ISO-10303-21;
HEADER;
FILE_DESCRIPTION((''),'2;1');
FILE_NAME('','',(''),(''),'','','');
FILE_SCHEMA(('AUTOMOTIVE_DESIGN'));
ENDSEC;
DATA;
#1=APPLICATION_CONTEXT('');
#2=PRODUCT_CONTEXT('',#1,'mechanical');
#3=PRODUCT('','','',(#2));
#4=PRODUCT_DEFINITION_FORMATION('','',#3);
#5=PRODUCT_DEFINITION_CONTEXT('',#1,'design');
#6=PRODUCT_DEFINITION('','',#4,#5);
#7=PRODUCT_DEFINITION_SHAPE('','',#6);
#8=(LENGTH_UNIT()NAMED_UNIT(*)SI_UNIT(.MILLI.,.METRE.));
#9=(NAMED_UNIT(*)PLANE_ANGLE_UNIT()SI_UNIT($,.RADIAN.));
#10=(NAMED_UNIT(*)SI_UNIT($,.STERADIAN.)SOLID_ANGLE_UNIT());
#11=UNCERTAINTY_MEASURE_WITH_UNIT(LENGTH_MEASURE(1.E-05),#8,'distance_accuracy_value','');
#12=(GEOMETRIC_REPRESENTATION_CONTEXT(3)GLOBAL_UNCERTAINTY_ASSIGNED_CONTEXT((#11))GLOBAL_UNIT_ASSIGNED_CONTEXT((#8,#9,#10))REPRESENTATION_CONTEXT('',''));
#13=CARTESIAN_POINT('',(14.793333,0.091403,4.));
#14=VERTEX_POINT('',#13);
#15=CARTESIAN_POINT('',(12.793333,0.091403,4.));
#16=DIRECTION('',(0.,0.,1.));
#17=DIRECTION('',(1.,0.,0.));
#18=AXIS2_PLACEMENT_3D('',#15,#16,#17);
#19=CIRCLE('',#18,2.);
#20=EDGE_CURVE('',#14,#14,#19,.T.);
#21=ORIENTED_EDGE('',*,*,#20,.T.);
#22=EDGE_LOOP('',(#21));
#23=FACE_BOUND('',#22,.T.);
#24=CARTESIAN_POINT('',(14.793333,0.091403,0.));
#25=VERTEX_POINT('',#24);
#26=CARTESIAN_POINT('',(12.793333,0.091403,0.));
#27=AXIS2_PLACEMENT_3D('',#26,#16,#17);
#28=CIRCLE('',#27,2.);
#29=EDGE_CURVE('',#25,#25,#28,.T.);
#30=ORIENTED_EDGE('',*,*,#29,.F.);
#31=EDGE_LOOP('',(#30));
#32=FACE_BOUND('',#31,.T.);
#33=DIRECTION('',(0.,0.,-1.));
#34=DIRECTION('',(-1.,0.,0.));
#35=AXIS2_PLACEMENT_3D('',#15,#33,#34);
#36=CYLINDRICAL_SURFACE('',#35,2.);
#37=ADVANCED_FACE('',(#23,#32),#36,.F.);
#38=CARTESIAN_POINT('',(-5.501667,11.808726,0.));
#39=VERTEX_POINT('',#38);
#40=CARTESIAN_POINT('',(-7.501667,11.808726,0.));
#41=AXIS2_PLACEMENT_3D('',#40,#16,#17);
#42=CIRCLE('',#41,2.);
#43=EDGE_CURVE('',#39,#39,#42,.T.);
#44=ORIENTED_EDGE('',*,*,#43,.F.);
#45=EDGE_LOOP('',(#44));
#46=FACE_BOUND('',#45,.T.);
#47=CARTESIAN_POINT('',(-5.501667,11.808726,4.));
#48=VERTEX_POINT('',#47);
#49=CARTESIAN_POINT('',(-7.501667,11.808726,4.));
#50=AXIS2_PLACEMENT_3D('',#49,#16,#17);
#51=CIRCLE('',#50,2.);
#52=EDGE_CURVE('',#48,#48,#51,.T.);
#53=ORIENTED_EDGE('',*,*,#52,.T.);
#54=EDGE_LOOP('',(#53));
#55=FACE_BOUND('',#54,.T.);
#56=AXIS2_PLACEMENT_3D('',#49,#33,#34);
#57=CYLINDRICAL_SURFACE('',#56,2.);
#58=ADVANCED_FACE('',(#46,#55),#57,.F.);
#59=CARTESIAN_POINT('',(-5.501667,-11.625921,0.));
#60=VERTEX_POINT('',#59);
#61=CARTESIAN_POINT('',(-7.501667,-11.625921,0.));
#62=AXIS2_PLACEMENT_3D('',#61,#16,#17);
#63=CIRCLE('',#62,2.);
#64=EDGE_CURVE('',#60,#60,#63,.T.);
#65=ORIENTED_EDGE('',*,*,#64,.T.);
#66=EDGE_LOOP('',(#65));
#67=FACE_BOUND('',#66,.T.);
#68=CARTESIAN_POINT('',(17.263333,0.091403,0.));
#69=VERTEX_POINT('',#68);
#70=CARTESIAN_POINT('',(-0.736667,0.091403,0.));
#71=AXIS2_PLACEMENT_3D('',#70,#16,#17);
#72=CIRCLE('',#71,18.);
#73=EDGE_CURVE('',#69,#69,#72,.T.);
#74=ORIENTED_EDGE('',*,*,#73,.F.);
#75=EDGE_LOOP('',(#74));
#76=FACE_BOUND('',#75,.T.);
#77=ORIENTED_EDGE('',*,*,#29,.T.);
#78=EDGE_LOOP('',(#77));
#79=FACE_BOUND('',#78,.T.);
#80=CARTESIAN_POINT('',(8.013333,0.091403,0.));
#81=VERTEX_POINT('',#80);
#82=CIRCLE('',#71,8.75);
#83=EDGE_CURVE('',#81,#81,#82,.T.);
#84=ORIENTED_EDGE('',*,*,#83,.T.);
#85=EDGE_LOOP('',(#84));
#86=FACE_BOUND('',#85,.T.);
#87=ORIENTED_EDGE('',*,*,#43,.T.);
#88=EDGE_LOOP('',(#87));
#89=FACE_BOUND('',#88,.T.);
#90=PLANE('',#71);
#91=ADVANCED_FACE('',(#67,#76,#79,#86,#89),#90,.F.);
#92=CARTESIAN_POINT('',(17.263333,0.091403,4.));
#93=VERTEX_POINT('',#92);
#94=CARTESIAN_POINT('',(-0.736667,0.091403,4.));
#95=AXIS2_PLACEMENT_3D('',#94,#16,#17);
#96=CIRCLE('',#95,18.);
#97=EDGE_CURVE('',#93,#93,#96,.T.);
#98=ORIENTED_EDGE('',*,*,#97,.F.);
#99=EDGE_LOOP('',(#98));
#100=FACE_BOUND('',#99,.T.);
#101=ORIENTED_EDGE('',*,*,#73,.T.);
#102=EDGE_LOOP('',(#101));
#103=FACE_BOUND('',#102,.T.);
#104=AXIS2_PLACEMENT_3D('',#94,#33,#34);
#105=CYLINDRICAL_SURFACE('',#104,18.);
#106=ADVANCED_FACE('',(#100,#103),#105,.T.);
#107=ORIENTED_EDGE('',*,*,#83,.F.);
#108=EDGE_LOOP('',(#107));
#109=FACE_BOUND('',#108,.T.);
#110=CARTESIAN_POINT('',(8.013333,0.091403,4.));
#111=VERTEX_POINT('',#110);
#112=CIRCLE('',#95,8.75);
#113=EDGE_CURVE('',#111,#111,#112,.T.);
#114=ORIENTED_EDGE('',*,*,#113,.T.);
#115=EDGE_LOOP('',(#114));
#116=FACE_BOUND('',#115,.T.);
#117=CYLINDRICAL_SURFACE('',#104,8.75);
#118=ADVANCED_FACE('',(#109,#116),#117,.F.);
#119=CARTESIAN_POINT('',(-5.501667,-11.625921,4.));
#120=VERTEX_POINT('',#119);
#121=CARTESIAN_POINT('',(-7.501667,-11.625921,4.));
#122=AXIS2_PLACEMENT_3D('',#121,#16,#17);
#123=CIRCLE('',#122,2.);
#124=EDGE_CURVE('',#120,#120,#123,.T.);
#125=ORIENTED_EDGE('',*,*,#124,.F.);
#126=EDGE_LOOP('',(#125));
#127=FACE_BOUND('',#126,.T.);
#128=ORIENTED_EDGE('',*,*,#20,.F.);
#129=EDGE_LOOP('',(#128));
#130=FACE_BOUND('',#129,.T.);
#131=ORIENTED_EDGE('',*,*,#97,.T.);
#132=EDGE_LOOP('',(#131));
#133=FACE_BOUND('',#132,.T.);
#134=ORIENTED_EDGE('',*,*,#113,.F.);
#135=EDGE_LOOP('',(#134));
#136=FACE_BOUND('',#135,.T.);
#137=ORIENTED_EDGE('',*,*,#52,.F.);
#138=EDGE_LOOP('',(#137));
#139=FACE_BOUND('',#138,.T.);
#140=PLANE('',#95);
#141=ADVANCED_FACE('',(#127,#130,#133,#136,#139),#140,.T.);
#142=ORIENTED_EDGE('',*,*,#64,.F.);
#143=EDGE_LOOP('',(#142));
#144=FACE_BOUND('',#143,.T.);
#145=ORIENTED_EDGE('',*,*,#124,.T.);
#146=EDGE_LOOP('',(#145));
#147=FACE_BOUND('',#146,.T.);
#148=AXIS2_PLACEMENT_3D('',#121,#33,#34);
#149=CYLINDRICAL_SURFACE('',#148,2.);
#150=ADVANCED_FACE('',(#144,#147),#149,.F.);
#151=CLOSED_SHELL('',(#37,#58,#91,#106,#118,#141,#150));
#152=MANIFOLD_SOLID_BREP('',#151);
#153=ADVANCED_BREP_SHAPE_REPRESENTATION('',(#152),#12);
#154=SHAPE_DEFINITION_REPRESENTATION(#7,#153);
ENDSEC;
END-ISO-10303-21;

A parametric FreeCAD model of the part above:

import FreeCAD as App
import Part
import Sketcher
Q = App.Units.Quantity

doc = App.newDocument("Part")
body = doc.addObject("PartDesign::Body", "Body")

# Sketch on XY plane
sketch1 = doc.addObject("Sketcher::SketchObject", "Sketch")
body.addObject(sketch1)
sketch1.AttachmentSupport = (doc.XY_Plane, [""])
sketch1.MapMode = "FlatFace"
sketch1.addGeometry([
    Part.Circle(App.Vector(-0.7, 0.1, 0), App.Vector(0, 0, 1), 18),  # 0
    Part.Circle(App.Vector(-7.5, -11.6, 0), App.Vector(0, 0, 1), 2),  # 1
    Part.Circle(App.Vector(-0.7, 0.1, 0), App.Vector(0, 0, 1), 8.8),  # 2
    Part.Circle(App.Vector(-7.5, 11.8, 0), App.Vector(0, 0, 1), 2),  # 3
    Part.Circle(App.Vector(12.8, 0.1, 0), App.Vector(0, 0, 1), 2),  # 4
], False)
sketch1.addConstraint([
    Sketcher.Constraint("Coincident", 2, 3, 0, 3),
    Sketcher.Constraint("Equal", 1, 3),
    Sketcher.Constraint("Equal", 3, 4),
    Sketcher.Constraint("Horizontal", 2, 3, 4, 3),
    Sketcher.Constraint("Vertical", 1, 3, 3, 3),
    Sketcher.Constraint("Diameter", 0, Q("36 mm")),
    Sketcher.Constraint("Diameter", 1, Q("4 mm")),
    Sketcher.Constraint("Diameter", 2, Q("17.5 mm")),
    Sketcher.Constraint("DistanceX", 0, 3, 4, 3, Q("13.53 mm")),
    Sketcher.Constraint("DistanceX", 1, 3, 0, 3, Q("6.765 mm")),
    Sketcher.Constraint("DistanceY", 1, 3, -1, 1, Q("11.625921 mm")),
    Sketcher.Constraint("DistanceX", 0, 3, -1, 1, Q("0.736667 mm")),
    Sketcher.Constraint("DistanceY", -1, 1, 0, 3, Q("0.091403 mm")),
    Sketcher.Constraint("DistanceY", -1, 1, 3, 3, Q("11.808726 mm")),
])
pad1 = doc.addObject("PartDesign::Pad", "Pad")
body.addObject(pad1)
pad1.Profile = sketch1
pad1.Length = 4

doc.recompute()
